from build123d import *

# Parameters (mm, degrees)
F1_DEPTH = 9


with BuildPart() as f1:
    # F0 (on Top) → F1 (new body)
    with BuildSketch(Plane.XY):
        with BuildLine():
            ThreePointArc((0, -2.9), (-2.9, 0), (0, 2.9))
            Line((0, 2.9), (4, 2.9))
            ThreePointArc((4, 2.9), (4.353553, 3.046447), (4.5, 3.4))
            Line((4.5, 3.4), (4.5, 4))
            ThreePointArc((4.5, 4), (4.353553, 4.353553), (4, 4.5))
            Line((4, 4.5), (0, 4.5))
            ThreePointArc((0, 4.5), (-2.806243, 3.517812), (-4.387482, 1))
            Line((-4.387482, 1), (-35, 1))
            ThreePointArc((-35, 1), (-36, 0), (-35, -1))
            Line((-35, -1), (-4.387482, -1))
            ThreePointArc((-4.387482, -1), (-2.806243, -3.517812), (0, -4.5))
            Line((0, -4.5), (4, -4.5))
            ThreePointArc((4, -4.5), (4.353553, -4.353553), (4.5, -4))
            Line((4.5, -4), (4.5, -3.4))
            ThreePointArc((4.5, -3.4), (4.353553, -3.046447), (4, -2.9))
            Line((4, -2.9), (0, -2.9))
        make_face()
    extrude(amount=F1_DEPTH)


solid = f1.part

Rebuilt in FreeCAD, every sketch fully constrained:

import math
import FreeCAD as App
import Part
import Sketcher
from FreeCAD import Vector
Q = App.Units.Quantity

doc = App.newDocument("Part")
params = doc.addObject("Spreadsheet::Sheet", "Params")
for row, (alias, value) in enumerate([
    ("sketch1_radius", "1 mm"),
    ("sketch1_radius2", "2.9 mm"),
    ("sketch1_radius3", "0.500001 mm"),
    ("sketch1_radius4", "4.499999 mm"),
    ("sketch1_width", "4 mm"),
    ("pad1_length", "9 mm"),
], start=1):
    params.set(f"A{row}", alias)
    params.set(f"B{row}", "=" + value)
    params.setAlias(f"B{row}", alias)

body = doc.addObject("PartDesign::Body", "Body")

sketch1 = doc.addObject("Sketcher::SketchObject", "Sketch")
body.addObject(sketch1)
sketch1.AttachmentSupport = (doc.XY_Plane, [""])
sketch1.MapMode = "FlatFace"
sketch1.addGeometry([
    Part.ArcOfCircle(Part.Circle(Vector(0, 0, 0), Vector(0, 0, 1), 2.9), math.radians(90), math.radians(270)),
    Part.LineSegment(Vector(0, 2.9, 0), Vector(4, 2.9, 0)),
    Part.ArcOfCircle(Part.Circle(Vector(4, 3.4, 0), Vector(0, 0, 1), 0.5), math.radians(-90), math.radians(0)),
    Part.LineSegment(Vector(4.5, 3.4, 0), Vector(4.5, 4, 0)),
    Part.ArcOfCircle(Part.Circle(Vector(4, 4, 0), Vector(0, 0, 1), 0.5), math.radians(0), math.radians(90)),
    Part.LineSegment(Vector(4, 4.5, 0), Vector(0, 4.5, 0)),
    Part.ArcOfCircle(Part.Circle(Vector(0, 0, 0), Vector(0, 0, 1), 4.5), math.radians(90), math.radians(167)),
    Part.LineSegment(Vector(-4.4, 1, 0), Vector(-35, 1, 0)),
    Part.ArcOfCircle(Part.Circle(Vector(-35, 0, 0), Vector(0, 0, 1), 1), math.radians(90), math.radians(270)),
    Part.LineSegment(Vector(-35, -1, 0), Vector(-4.4, -1, 0)),
    Part.ArcOfCircle(Part.Circle(Vector(0, 0, 0), Vector(0, 0, 1), 4.5), math.radians(-167), math.radians(-90)),
    Part.LineSegment(Vector(0, -4.5, 0), Vector(4, -4.5, 0)),
    Part.ArcOfCircle(Part.Circle(Vector(4, -4, 0), Vector(0, 0, 1), 0.5), math.radians(-90), math.radians(0)),
    Part.LineSegment(Vector(4.5, -4, 0), Vector(4.5, -3.4, 0)),
    Part.ArcOfCircle(Part.Circle(Vector(4, -3.4, 0), Vector(0, 0, 1), 0.5), math.radians(0), math.radians(90)),
    Part.LineSegment(Vector(4, -2.9, 0), Vector(0, -2.9, 0)),
], False)
sketch1.addConstraint([
    Sketcher.Constraint("Tangent", 0, 1, 1, 1),
    Sketcher.Constraint("Coincident", 1, 2, 2, 1),
    Sketcher.Constraint("Coincident", 2, 2, 3, 1),
    Sketcher.Constraint("Coincident", 3, 2, 4, 1),
    Sketcher.Constraint("Coincident", 4, 2, 5, 1),
    Sketcher.Constraint("Tangent", 5, 2, 6, 1),
    Sketcher.Constraint("Coincident", 6, 2, 7, 1),
    Sketcher.Constraint("Tangent", 7, 2, 8, 1),
    Sketcher.Constraint("Tangent", 8, 2, 9, 1),
    Sketcher.Constraint("Coincident", 9, 2, 10, 1),
    Sketcher.Constraint("Tangent", 10, 2, 11, 1),
    Sketcher.Constraint("Coincident", 11, 2, 12, 1),
    Sketcher.Constraint("Coincident", 12, 2, 13, 1),
    Sketcher.Constraint("Coincident", 13, 2, 14, 1),
    Sketcher.Constraint("Coincident", 14, 2, 15, 1),
    Sketcher.Constraint("Tangent", 15, 2, 0, 2),
    Sketcher.Constraint("Horizontal", 1),
    Sketcher.Constraint("Vertical", 3),
    Sketcher.Constraint("Horizontal", 5),
    Sketcher.Constraint("Horizontal", 7),
    Sketcher.Constraint("Horizontal", 9),
    Sketcher.Constraint("Horizontal", 11),
    Sketcher.Constraint("Vertical", 13),
    Sketcher.Constraint("Horizontal", 15),
    Sketcher.Constraint("Coincident", 0, 3, -1, 1),
    Sketcher.Constraint("Coincident", 6, 3, -1, 1),
    Sketcher.Constraint("Coincident", 10, 3, -1, 1),
    Sketcher.Constraint("Equal", 2, 4),
    Sketcher.Constraint("Equal", 6, 10),
    Sketcher.Constraint("Equal", 4, 12),
    Sketcher.Constraint("Equal", 12, 14),
    Sketcher.Constraint("Symmetric", 3, 2, 12, 2, -1),
    Sketcher.Constraint("PointOnObject", 8, 3, -1),
    Sketcher.Constraint("Horizontal", 4, 3, 3, 2),
    Sketcher.Constraint("Horizontal", 14, 3, 13, 2),
    Sketcher.Constraint("Vertical", 14, 3, 1, 2),
    Sketcher.Constraint("Vertical", 1, 2, 4, 2),
    Sketcher.Constraint("Vertical", 4, 2, 11, 2),
    Sketcher.Constraint("Vertical", 11, 2, 14, 2),
    Sketcher.Constraint("Equal", 3, 13),
    Sketcher.Constraint("Radius", 8, Q("1 mm")),
    Sketcher.Constraint("Radius", 0, Q("2.9 mm")),
    Sketcher.Constraint("Radius", 2, Q("0.500001 mm")),
    Sketcher.Constraint("Radius", 6, Q("4.499999 mm")),
    Sketcher.Constraint("DistanceX", 1, 1, 1, 2, Q("4 mm")),
    Sketcher.Constraint("DistanceX", 8, 3, -1, 1, Q("35 mm")),
])
sketch1.setExpression("Constraints[40]", "Params.sketch1_radius")
sketch1.setExpression("Constraints[41]", "Params.sketch1_radius2")
sketch1.setExpression("Constraints[42]", "Params.sketch1_radius3")
sketch1.setExpression("Constraints[43]", "Params.sketch1_radius4")
sketch1.setExpression("Constraints[44]", "Params.sketch1_width")
pad1 = doc.addObject("PartDesign::Pad", "Pad")
body.addObject(pad1)
pad1.Profile = sketch1
pad1.setExpression("Length", "Params.pad1_length")

doc.recompute()
